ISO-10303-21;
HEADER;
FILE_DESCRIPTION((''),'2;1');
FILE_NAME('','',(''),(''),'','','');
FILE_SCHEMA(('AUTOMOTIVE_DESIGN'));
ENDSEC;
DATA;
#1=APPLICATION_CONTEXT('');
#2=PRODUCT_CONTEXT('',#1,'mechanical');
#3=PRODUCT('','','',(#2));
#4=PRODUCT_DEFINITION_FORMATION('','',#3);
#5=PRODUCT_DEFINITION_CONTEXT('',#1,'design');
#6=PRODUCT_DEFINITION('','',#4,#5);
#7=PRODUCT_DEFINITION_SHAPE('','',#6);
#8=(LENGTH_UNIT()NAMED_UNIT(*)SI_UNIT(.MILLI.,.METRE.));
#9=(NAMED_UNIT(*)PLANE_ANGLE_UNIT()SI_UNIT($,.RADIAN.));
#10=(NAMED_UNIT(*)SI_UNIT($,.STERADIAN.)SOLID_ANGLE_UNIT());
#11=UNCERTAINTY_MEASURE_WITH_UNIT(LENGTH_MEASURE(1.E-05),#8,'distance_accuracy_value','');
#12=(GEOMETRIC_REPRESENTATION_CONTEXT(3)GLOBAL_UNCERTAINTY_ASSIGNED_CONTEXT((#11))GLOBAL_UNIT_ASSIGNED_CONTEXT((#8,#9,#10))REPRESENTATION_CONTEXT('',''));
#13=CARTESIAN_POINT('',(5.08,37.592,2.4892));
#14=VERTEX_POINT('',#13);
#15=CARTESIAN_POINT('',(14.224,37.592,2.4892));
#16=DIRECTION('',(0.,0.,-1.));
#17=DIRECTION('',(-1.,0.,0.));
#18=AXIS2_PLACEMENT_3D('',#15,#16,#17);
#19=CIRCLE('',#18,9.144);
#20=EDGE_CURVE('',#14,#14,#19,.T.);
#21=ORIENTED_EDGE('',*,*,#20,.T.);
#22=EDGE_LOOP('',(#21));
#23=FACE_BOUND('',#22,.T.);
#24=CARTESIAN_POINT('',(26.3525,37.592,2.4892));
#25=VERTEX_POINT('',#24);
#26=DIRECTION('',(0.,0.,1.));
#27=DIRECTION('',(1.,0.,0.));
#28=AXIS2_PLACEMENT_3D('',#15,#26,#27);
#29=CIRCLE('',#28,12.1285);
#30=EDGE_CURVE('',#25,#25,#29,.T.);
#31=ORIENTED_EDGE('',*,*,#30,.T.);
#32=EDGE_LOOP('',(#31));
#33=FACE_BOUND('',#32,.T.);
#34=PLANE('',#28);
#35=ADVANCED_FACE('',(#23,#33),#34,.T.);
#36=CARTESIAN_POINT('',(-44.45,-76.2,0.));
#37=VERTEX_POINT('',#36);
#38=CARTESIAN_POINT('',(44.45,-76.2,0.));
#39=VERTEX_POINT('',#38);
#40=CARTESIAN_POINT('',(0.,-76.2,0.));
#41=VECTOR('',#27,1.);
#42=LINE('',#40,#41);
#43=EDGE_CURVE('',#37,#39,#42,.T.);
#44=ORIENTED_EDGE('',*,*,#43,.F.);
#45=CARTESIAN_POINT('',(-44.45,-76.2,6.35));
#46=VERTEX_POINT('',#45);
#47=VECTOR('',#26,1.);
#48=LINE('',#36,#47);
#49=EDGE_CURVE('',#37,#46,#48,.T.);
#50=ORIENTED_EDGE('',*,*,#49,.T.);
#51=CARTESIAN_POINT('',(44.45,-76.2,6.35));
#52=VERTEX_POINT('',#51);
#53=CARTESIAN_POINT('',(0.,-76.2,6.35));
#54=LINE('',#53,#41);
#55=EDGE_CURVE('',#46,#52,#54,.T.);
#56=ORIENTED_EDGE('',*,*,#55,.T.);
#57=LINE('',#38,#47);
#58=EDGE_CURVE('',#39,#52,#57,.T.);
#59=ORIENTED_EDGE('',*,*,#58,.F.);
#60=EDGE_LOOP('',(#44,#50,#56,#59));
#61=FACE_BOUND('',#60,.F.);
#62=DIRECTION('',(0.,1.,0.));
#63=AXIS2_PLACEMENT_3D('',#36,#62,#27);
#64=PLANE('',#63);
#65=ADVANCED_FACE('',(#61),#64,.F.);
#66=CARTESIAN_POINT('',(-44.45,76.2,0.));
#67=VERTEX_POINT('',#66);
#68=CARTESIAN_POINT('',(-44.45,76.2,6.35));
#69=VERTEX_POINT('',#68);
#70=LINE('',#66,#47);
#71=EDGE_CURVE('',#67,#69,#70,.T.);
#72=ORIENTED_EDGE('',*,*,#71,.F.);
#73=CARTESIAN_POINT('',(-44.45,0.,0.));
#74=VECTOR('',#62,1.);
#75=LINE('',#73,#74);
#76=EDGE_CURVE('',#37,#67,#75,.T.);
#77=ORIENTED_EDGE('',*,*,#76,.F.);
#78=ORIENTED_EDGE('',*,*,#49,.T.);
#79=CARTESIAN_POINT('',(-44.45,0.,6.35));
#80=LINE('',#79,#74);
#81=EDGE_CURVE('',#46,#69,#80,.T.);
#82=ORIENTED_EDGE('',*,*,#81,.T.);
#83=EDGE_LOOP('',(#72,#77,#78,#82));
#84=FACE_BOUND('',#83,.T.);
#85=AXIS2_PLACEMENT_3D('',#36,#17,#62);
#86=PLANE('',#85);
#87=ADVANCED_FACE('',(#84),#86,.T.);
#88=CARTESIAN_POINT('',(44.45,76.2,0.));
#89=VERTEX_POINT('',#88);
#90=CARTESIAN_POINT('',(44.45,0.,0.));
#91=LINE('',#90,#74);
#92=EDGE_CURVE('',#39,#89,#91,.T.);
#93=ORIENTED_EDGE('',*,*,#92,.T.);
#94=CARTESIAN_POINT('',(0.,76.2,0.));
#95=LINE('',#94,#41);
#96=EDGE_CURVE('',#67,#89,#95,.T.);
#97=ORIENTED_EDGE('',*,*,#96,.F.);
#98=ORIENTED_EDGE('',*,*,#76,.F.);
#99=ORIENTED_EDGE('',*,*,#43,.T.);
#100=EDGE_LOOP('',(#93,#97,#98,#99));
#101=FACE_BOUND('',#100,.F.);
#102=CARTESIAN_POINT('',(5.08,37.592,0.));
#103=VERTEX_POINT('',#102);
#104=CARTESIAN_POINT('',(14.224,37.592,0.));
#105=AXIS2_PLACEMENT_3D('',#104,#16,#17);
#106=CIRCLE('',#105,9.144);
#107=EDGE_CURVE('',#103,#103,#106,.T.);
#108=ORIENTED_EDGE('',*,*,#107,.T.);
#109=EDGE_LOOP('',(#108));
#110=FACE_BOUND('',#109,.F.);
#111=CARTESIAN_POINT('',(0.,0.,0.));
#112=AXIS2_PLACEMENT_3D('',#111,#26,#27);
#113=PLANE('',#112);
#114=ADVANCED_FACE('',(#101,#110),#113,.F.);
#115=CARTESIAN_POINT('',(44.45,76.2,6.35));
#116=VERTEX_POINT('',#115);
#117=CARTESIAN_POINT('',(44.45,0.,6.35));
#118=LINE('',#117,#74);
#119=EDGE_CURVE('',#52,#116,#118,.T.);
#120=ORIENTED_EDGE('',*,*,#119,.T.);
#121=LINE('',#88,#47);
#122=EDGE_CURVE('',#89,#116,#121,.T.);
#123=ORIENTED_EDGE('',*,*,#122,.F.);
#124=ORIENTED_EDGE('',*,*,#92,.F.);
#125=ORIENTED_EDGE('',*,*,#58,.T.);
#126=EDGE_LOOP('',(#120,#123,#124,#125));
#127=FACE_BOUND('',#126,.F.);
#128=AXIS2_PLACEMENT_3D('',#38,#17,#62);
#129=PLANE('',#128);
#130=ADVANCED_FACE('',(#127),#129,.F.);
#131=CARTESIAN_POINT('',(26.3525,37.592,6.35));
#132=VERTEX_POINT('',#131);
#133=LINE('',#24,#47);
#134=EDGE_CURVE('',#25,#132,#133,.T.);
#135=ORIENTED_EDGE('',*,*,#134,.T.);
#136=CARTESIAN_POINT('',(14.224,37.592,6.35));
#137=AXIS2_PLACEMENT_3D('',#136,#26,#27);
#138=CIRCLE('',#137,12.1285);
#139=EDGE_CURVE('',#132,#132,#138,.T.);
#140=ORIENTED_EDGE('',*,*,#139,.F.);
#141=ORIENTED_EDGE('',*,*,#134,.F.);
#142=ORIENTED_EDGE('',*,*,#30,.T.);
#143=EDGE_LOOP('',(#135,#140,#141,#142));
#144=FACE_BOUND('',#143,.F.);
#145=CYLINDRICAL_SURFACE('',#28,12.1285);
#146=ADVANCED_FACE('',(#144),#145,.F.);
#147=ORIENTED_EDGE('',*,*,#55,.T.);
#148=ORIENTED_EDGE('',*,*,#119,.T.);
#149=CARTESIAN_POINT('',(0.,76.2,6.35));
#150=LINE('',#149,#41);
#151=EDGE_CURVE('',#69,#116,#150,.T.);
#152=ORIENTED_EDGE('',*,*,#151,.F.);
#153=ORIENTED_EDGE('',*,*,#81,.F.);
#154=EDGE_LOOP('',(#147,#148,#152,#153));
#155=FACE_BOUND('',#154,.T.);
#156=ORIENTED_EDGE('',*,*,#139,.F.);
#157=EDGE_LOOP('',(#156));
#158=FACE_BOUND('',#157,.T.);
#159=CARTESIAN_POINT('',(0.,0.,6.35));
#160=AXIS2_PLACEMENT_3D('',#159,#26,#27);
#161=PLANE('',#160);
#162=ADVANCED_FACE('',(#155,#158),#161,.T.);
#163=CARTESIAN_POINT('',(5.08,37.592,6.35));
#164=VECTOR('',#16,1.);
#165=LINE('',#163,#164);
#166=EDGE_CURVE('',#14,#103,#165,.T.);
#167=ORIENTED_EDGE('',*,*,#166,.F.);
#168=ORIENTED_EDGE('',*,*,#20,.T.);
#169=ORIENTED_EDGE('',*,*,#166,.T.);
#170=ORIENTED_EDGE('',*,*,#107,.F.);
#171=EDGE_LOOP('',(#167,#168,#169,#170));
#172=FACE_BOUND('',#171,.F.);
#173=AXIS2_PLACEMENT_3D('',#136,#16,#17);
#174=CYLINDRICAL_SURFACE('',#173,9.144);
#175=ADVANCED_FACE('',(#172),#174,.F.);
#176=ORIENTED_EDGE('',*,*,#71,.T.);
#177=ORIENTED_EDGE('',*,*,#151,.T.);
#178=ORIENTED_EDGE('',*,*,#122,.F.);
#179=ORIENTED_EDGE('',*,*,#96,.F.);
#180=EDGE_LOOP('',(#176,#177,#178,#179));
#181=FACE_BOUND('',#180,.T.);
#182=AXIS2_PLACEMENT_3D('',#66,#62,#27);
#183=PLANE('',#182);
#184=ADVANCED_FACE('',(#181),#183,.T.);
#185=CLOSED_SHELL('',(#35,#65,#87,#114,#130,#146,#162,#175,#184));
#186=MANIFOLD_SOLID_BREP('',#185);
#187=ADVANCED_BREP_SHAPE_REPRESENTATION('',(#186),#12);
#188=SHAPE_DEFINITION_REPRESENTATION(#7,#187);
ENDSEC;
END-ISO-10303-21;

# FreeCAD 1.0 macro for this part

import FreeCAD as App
import Part
import Sketcher
Q = App.Units.Quantity

doc = App.newDocument("Part")
params = doc.addObject("Spreadsheet::Sheet", "Params")
for row, (alias, value) in enumerate([
    ("sketch1_height", "6 in"),
    ("sketch1_width", "3.5 in"),
    ("pad1_length", "0.25 in"),
    ("sketch2_diameter", "0.72 in"),
    ("hole_diameter", "0.72 in"),
    ("hole_cbore_diameter", "0.955 in"),
    ("hole_cbore_depth", "0.152 in"),
], start=1):
    params.set(f"A{row}", alias)
    params.set(f"B{row}", "=" + value)
    params.setAlias(f"B{row}", alias)

body = doc.addObject("PartDesign::Body", "Body")

# Sketch on XY plane
sketch1 = doc.addObject("Sketcher::SketchObject", "Sketch")
body.addObject(sketch1)
sketch1.AttachmentSupport = (doc.XY_Plane, [""])
sketch1.MapMode = "FlatFace"
sketch1.addGeometry(Part.LineSegment(App.Vector(-44.45, 76.2, 0), App.Vector(-44.45, -76.2, 0)), False)
sketch1.addGeometry(Part.LineSegment(App.Vector(-44.45, -76.2, 0), App.Vector(44.45, -76.2, 0)), False)
sketch1.addGeometry(Part.LineSegment(App.Vector(44.45, -76.2, 0), App.Vector(44.45, 76.2, 0)), False)
sketch1.addGeometry(Part.LineSegment(App.Vector(44.45, 76.2, 0), App.Vector(-44.45, 76.2, 0)), False)
sketch1.addConstraint(Sketcher.Constraint("Coincident", 0, 2, 1, 1))
sketch1.addConstraint(Sketcher.Constraint("Coincident", 1, 2, 2, 1))
sketch1.addConstraint(Sketcher.Constraint("Coincident", 2, 2, 3, 1))
sketch1.addConstraint(Sketcher.Constraint("Coincident", 3, 2, 0, 1))
sketch1.addConstraint(Sketcher.Constraint("Vertical", 0))
sketch1.addConstraint(Sketcher.Constraint("Horizontal", 1))
sketch1.addConstraint(Sketcher.Constraint("Vertical", 2))
sketch1.addConstraint(Sketcher.Constraint("Horizontal", 3))
sketch1.addConstraint(Sketcher.Constraint("Symmetric", 0, 2, 2, 2, -1, 1))
sketch1.addConstraint(Sketcher.Constraint("DistanceY", 0, 2, 0, 1, Q("6 in")))
sketch1.addConstraint(Sketcher.Constraint("DistanceX", 1, 1, 1, 2, Q("3.5 in")))
sketch1.setExpression("Constraints[9]", "Params.sketch1_height")
sketch1.setExpression("Constraints[10]", "Params.sketch1_width")
pad1 = doc.addObject("PartDesign::Pad", "Pad")
body.addObject(pad1)
pad1.Profile = sketch1
pad1.setExpression("Length", "Params.pad1_length")

# Sketch on XY plane
sketch2 = doc.addObject("Sketcher::SketchObject", "Sketch001")
body.addObject(sketch2)
sketch2.AttachmentSupport = (doc.XY_Plane, [""])
sketch2.MapMode = "FlatFace"
sketch2.AttachmentOffset = App.Placement(App.Vector(0, 0, 0.25 * 25.4), App.Rotation())
sketch2.addGeometry(Part.Circle(App.Vector(14.224, 37.592, 0), App.Vector(0, 0, 1), 9.144), False)
sketch2.addConstraint(Sketcher.Constraint("Diameter", 0, Q("0.72 in")))
sketch2.addConstraint(Sketcher.Constraint("DistanceX", -1, 1, 0, 3, Q("0.56 in")))
sketch2.addConstraint(Sketcher.Constraint("DistanceY", -1, 1, 0, 3, Q("1.48 in")))
sketch2.setExpression("Constraints[0]", "Params.sketch2_diameter")
doc.recompute()
hole = doc.addObject("PartDesign::Hole", "Hole")
body.addObject(hole)
hole.Profile = sketch2
hole.ThreadType = "None"
hole.setExpression("Diameter", "Params.hole_diameter")
hole.DepthType = "ThroughAll"
hole.HoleCutType = "Counterbore"
hole.setExpression("HoleCutDiameter", "Params.hole_cbore_diameter")
hole.setExpression("HoleCutDepth", "Params.hole_cbore_depth")

doc.recompute()
